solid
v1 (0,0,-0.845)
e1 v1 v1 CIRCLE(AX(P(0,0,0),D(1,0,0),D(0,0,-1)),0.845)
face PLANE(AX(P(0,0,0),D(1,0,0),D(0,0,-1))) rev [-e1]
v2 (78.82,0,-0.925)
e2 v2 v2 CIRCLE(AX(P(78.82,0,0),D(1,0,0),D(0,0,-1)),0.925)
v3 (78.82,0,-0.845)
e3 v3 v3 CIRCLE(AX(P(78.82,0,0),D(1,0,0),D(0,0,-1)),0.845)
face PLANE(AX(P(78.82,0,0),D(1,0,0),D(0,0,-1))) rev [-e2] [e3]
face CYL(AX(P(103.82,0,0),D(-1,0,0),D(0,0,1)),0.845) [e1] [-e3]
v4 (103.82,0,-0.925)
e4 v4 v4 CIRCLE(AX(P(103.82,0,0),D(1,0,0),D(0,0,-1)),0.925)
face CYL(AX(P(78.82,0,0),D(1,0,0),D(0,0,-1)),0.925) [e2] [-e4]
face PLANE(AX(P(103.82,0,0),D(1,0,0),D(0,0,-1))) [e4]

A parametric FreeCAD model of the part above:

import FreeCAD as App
import Part
import Sketcher
from FreeCAD import Vector

doc = App.newDocument("Part")
body = doc.addObject("PartDesign::Body", "Body")

sketch1 = body.newObject("Sketcher::SketchObject", "Sketch")
sketch1.AttachmentSupport = (doc.getObject("YZ_Plane"), [""])
sketch1.MapMode = "FlatFace"
sketch1.addGeometry(Part.Circle(Vector(0, 0, 0), Vector(0, 0, 1), 0.8), False)
sketch1.addConstraint(Sketcher.Constraint("Coincident", 0, 3, -1, 1))
sketch1.addConstraint(Sketcher.Constraint("Diameter", 0, 1.69))
pad1 = body.newObject("PartDesign::Pad", "Pad")
pad1.Profile = sketch1
pad1.Length = 103.82

sketch2 = body.newObject("Sketcher::SketchObject", "Sketch001")
sketch2.AttachmentSupport = (doc.getObject("YZ_Plane"), [""])
sketch2.MapMode = "FlatFace"
sketch2.AttachmentOffset = App.Placement(Vector(0, 0, 103.82), App.Rotation())
sketch2.addGeometry(Part.Circle(Vector(0, 0, 0), Vector(0, 0, 1), 0.9), False)
sketch2.addConstraint(Sketcher.Constraint("Coincident", 0, 3, -1, 1))
sketch2.addConstraint(Sketcher.Constraint("Diameter", 0, 1.85))
pad2 = body.newObject("PartDesign::Pad", "Pad001")
pad2.Profile = sketch2
pad2.Length = 25
pad2.Reversed = True

doc.recompute()
